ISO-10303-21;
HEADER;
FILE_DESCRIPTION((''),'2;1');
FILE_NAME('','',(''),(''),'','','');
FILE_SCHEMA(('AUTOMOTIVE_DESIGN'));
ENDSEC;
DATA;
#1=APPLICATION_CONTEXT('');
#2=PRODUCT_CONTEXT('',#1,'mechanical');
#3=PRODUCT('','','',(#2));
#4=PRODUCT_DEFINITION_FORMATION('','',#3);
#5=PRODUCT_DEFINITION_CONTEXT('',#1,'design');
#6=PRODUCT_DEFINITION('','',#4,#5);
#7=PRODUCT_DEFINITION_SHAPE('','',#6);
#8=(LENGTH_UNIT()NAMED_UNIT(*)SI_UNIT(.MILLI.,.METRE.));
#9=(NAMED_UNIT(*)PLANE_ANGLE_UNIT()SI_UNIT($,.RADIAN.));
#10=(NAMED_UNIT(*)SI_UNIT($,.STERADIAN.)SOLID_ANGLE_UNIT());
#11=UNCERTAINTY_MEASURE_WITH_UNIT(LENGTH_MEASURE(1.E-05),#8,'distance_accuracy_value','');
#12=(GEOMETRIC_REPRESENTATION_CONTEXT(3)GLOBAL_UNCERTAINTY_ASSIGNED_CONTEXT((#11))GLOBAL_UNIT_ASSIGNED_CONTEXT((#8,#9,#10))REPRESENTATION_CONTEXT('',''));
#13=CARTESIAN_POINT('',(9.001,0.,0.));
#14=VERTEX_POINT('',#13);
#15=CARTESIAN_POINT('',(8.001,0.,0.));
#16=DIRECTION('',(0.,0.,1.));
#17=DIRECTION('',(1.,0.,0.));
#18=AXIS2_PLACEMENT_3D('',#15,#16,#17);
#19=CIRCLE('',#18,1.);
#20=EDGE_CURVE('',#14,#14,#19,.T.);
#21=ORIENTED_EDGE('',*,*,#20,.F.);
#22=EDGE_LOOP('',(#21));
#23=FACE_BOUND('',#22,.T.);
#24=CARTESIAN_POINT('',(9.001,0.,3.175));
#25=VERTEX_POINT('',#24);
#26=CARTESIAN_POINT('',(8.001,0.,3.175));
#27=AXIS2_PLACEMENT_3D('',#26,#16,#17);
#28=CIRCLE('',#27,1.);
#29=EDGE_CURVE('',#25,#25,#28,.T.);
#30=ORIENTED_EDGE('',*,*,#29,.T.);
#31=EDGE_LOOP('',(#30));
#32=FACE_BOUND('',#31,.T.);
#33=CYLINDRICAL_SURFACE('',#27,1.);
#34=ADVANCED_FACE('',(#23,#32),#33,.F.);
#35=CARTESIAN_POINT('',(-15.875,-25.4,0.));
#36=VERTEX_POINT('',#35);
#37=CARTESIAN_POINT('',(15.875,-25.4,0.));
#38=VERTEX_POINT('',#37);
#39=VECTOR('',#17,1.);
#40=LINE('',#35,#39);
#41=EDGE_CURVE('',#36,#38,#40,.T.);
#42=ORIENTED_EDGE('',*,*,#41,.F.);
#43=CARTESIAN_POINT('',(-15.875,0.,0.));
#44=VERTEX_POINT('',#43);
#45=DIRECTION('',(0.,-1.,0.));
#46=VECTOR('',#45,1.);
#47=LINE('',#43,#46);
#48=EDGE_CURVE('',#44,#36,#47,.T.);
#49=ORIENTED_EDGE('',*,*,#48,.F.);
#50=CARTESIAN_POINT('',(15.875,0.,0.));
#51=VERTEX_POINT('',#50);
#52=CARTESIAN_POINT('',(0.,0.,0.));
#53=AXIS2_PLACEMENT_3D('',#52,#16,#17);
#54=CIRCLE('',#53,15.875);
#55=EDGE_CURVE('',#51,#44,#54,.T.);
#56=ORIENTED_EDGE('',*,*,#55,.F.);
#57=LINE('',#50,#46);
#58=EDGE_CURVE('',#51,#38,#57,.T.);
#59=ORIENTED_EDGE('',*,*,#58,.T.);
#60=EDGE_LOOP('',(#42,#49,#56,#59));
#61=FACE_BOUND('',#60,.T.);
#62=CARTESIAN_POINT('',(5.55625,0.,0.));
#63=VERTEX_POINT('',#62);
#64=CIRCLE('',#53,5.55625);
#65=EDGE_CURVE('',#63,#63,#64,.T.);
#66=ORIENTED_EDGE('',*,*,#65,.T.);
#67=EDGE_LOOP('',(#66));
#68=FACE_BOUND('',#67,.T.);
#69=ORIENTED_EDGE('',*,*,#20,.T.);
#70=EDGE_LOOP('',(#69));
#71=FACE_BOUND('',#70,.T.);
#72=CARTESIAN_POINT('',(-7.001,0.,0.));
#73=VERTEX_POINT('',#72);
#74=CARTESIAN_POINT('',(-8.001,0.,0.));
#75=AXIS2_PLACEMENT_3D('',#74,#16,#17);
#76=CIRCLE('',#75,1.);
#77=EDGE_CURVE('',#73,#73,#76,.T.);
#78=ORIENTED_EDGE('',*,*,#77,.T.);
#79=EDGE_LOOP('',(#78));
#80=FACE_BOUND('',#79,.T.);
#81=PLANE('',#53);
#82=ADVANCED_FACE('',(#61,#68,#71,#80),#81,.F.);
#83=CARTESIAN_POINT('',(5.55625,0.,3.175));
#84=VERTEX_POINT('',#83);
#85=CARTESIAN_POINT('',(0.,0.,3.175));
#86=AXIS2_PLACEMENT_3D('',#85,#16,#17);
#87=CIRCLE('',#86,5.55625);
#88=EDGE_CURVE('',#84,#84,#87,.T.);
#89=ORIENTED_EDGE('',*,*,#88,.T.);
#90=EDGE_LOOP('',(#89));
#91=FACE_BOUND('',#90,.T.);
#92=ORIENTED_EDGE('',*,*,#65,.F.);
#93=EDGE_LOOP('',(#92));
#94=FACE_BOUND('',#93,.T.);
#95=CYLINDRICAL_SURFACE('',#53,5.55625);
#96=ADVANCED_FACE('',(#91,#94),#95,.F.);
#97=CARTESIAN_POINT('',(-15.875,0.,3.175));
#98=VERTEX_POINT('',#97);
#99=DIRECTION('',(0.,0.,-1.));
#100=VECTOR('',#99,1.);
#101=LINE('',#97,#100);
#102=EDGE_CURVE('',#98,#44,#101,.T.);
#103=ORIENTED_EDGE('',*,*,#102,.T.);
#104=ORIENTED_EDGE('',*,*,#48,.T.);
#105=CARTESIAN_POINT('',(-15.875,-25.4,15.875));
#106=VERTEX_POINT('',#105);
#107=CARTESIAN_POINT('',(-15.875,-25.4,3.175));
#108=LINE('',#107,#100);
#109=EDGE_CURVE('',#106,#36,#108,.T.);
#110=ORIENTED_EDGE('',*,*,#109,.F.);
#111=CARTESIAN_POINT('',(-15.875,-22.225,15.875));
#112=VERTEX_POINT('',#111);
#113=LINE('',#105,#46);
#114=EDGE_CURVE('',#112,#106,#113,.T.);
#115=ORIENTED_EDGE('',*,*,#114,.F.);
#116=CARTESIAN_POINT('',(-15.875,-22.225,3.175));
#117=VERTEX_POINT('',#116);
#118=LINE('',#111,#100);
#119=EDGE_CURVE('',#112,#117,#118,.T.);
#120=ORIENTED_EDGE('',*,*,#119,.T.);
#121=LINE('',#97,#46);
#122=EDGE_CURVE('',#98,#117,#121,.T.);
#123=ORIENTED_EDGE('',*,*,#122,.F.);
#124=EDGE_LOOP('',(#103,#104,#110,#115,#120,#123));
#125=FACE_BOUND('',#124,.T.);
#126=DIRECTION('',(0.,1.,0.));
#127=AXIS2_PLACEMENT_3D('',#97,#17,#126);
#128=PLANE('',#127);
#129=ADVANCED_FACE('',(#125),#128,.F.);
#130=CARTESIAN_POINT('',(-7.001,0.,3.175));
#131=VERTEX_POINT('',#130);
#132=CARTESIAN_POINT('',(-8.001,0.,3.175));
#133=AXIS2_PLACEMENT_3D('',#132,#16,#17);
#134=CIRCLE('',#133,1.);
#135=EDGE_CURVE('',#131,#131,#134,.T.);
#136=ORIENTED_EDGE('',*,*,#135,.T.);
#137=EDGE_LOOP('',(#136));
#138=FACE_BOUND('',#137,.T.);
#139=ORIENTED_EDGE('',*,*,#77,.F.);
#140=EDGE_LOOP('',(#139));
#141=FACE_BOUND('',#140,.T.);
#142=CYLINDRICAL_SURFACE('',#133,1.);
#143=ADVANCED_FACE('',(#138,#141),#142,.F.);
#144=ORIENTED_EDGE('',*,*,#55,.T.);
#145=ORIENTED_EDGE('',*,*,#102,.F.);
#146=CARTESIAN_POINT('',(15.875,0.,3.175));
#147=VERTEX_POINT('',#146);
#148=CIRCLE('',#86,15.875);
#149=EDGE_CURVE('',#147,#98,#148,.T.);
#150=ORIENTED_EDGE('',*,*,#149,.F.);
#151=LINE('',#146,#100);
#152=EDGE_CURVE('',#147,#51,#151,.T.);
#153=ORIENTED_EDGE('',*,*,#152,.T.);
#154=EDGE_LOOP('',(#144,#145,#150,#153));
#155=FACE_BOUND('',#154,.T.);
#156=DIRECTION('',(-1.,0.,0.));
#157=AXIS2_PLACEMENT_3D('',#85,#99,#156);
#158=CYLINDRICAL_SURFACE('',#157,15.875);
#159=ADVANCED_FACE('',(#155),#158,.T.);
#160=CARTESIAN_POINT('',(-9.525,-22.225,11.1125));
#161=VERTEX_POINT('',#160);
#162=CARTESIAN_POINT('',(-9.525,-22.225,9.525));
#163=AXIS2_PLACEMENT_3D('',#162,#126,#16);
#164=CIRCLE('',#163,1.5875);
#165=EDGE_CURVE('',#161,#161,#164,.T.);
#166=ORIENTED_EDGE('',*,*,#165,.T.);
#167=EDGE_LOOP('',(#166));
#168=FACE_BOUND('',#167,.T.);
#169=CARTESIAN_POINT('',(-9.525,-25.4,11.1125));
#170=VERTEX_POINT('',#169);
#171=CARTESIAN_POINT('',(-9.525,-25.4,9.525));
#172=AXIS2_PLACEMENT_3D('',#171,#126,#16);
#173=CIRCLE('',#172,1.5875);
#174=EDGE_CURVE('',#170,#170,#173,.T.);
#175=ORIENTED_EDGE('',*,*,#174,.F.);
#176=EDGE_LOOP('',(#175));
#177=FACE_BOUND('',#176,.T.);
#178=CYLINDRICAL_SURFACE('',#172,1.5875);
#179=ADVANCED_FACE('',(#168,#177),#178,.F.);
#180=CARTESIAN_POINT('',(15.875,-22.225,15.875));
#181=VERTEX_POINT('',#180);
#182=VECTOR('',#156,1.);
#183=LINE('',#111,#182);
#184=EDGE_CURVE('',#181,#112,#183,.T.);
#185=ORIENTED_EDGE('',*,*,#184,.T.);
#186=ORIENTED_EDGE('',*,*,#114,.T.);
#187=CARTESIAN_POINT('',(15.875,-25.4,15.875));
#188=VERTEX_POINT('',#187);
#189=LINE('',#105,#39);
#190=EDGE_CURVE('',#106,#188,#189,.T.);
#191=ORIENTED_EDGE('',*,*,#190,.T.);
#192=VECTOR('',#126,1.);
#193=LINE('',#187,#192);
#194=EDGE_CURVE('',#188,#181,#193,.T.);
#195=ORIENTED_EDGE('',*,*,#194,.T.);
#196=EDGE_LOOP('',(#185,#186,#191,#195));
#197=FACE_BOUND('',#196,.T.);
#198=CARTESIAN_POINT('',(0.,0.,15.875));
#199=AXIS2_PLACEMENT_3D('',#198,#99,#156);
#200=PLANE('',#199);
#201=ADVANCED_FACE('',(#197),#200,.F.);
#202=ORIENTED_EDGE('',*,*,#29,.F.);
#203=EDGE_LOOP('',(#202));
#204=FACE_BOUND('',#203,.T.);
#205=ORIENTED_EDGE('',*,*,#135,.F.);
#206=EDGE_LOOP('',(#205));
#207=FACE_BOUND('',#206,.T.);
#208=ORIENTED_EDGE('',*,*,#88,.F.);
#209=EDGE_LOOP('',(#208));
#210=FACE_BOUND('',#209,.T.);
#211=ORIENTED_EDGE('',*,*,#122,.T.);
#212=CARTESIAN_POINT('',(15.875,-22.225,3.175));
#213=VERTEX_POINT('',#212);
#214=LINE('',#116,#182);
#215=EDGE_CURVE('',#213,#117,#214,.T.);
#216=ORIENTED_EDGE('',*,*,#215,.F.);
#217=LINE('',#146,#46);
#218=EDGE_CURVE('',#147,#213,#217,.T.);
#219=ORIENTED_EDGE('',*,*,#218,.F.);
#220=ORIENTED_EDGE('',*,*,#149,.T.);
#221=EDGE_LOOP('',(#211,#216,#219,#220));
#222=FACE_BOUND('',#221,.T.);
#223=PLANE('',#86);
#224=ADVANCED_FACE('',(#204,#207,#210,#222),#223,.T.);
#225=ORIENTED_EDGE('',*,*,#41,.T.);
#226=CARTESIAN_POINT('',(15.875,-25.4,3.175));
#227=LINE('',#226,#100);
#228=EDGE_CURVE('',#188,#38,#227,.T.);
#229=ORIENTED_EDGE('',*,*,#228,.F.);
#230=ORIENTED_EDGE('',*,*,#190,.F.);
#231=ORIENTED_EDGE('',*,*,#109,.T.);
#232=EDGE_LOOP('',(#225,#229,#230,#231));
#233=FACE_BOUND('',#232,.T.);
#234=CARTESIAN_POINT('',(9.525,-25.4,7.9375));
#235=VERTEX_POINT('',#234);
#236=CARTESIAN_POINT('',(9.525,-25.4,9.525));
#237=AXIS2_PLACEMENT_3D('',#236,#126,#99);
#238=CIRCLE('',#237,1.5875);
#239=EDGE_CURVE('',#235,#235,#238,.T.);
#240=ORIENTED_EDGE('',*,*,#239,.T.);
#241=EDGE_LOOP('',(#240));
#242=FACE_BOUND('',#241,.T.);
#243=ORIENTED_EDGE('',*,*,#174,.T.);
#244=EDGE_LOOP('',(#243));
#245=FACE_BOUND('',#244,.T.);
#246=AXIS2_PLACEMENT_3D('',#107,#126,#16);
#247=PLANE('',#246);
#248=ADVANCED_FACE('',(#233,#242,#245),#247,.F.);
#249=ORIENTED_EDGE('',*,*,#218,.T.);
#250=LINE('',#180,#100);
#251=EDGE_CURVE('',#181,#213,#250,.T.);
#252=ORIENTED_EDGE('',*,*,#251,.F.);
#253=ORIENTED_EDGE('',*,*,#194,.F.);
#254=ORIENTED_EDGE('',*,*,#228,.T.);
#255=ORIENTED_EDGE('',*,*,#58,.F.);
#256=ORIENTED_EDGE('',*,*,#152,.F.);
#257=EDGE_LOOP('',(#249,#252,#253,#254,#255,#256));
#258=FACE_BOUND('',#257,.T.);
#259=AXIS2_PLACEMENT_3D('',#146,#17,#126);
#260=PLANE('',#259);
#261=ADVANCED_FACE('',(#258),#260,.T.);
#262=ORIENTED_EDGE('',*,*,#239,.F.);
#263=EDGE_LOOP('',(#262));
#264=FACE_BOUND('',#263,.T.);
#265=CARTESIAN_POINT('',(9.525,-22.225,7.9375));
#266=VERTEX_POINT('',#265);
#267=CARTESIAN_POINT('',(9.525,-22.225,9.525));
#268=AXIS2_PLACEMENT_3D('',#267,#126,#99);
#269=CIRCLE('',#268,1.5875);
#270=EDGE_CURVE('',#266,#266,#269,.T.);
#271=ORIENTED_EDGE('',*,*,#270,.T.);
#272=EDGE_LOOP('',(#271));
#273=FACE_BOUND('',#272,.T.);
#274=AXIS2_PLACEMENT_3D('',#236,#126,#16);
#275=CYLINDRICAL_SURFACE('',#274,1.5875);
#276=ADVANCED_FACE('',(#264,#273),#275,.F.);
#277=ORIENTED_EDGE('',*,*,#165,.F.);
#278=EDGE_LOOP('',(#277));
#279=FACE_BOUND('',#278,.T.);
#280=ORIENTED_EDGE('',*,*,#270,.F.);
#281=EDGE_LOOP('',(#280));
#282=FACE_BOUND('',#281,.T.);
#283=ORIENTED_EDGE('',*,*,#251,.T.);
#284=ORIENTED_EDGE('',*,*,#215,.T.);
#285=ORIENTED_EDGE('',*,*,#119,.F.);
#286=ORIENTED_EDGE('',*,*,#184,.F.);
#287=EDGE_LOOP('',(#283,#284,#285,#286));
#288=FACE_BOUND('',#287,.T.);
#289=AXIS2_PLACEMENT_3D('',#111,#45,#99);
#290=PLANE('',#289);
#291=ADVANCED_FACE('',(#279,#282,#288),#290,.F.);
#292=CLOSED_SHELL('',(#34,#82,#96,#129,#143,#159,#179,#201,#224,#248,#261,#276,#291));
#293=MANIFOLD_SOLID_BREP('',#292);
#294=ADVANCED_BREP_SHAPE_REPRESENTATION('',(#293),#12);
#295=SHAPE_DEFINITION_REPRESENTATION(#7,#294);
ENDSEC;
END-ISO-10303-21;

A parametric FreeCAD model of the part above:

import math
import FreeCAD as App
import Part
import Sketcher

V = App.Vector
Q = App.Units.Quantity

doc = App.newDocument("Part")
body = doc.addObject("PartDesign::Body", "Body")

sketch1 = body.newObject("Sketcher::SketchObject", "Sketch")
sketch1.AttachmentSupport = (doc.getObject("XY_Plane"), [""])
sketch1.MapMode = "FlatFace"
sketch1.addGeometry(Part.ArcOfCircle(Part.Circle(V(0, 0, 0), V(0, 0, 1), 16), math.radians(0), math.radians(180)), False)
sketch1.addGeometry(Part.LineSegment(V(-16, 0, 0), V(-16, -25, 0)), False)
sketch1.addGeometry(Part.LineSegment(V(-16, -25, 0), V(16, -25, 0)), False)
sketch1.addGeometry(Part.LineSegment(V(16, -25, 0), V(16, 0, 0)), False)
sketch1.addConstraint(Sketcher.Constraint("Tangent", 0, 2, 1, 1))
sketch1.addConstraint(Sketcher.Constraint("Coincident", 1, 2, 2, 1))
sketch1.addConstraint(Sketcher.Constraint("Coincident", 2, 2, 3, 1))
sketch1.addConstraint(Sketcher.Constraint("Tangent", 3, 2, 0, 1))
sketch1.addConstraint(Sketcher.Constraint("Vertical", 1))
sketch1.addConstraint(Sketcher.Constraint("Horizontal", 2))
sketch1.addConstraint(Sketcher.Constraint("Vertical", 3))
sketch1.addConstraint(Sketcher.Constraint("Coincident", 0, 3, -1, 1))
sketch1.addConstraint(Sketcher.Constraint("DistanceY", 1, 2, 1, 1, Q("1 in")))
sketch1.addConstraint(Sketcher.Constraint("Radius", 0, Q("0.625 in")))
pad1 = body.newObject("PartDesign::Pad", "Pad")
pad1.Profile = sketch1
pad1.Length = Q("0.125 in")

sketch2 = body.newObject("Sketcher::SketchObject", "Sketch001")
sketch2.AttachmentSupport = (doc.getObject("XY_Plane"), [""])
sketch2.MapMode = "FlatFace"
sketch2.AttachmentOffset = App.Placement(V(0, 0, 0.125 * 25.4), App.Rotation())
sketch2.addGeometry(Part.Circle(V(0, 0, 0), V(0, 0, 1), 6), False)
sketch2.addConstraint(Sketcher.Constraint("Coincident", 0, 3, -1, 1))
sketch2.addConstraint(Sketcher.Constraint("Diameter", 0, Q("0.4375 in")))
pocket1 = body.newObject("PartDesign::Pocket", "Pocket")
pocket1.Profile = sketch2
pocket1.Type = "ThroughAll"

sketch3 = body.newObject("Sketcher::SketchObject", "Sketch002")
sketch3.AttachmentSupport = (doc.getObject("XY_Plane"), [""])
sketch3.MapMode = "FlatFace"
sketch3.AttachmentOffset = App.Placement(V(0, 0, 0.125 * 25.4), App.Rotation())
sketch3.addGeometry(Part.LineSegment(V(-15.9, -22.2, 0), V(-15.9, -25.4, 0)), False)
sketch3.addGeometry(Part.LineSegment(V(-15.9, -25.4, 0), V(15.9, -25.4, 0)), False)
sketch3.addGeometry(Part.LineSegment(V(15.9, -25.4, 0), V(15.9, -22.2, 0)), False)
sketch3.addGeometry(Part.LineSegment(V(15.9, -22.2, 0), V(-15.9, -22.2, 0)), False)
sketch3.addConstraint(Sketcher.Constraint("Coincident", 0, 2, 1, 1))
sketch3.addConstraint(Sketcher.Constraint("Coincident", 1, 2, 2, 1))
sketch3.addConstraint(Sketcher.Constraint("Coincident", 2, 2, 3, 1))
sketch3.addConstraint(Sketcher.Constraint("Coincident", 3, 2, 0, 1))
sketch3.addConstraint(Sketcher.Constraint("Vertical", 0))
sketch3.addConstraint(Sketcher.Constraint("Horizontal", 1))
sketch3.addConstraint(Sketcher.Constraint("Vertical", 2))
sketch3.addConstraint(Sketcher.Constraint("Horizontal", 3))
sketch3.addConstraint(Sketcher.Constraint("DistanceY", 0, 2, -1, 1, Q("1 in")))
sketch3.addConstraint(Sketcher.Constraint("DistanceX", 1, 1, 1, 2, Q("1.25 in")))
sketch3.addConstraint(Sketcher.Constraint("DistanceY", 0, 2, 0, 1, Q("0.125 in")))
sketch3.addConstraint(Sketcher.Constraint("DistanceX", 0, 2, -1, 1, Q("0.625 in")))
pad2 = body.newObject("PartDesign::Pad", "Pad001")
pad2.Profile = sketch3
pad2.Length = Q("0.5 in")

sketch4 = body.newObject("Sketcher::SketchObject", "Sketch003")
sketch4.AttachmentSupport = (doc.getObject("XZ_Plane"), [""])
sketch4.MapMode = "FlatFace"
sketch4.AttachmentOffset = App.Placement(V(0, 0, 0.875 * 25.4), App.Rotation())
sketch4.addGeometry(Part.Circle(V(-9.5, 9.5, 0), V(0, 0, 1), 1.6), False)
sketch4.addGeometry(Part.Circle(V(9.5, 9.5, 0), V(0, 0, 1), 1.6), False)
sketch4.addConstraint(Sketcher.Constraint("Equal", 0, 1))
sketch4.addConstraint(Sketcher.Constraint("Symmetric", 0, 3, 1, 3, -2))
sketch4.addConstraint(Sketcher.Constraint("Diameter", 0, Q("0.125 in")))
sketch4.addConstraint(Sketcher.Constraint("DistanceX", 0, 3, 1, 3, Q("0.75 in")))
sketch4.addConstraint(Sketcher.Constraint("DistanceY", -1, 1, 0, 3, Q("0.375 in")))
pocket2 = body.newObject("PartDesign::Pocket", "Pocket001")
pocket2.Profile = sketch4
pocket2.Type = "ThroughAll"
pocket2.Reversed = True

sketch5 = body.newObject("Sketcher::SketchObject", "Sketch004")
sketch5.AttachmentSupport = (doc.getObject("XY_Plane"), [""])
sketch5.MapMode = "FlatFace"
sketch5.AttachmentOffset = App.Placement(V(0, 0, 0.125 * 25.4), App.Rotation())
sketch5.addGeometry(Part.Circle(V(-8, 0, 0), V(0, 0, 1), 1), False)
sketch5.addGeometry(Part.Circle(V(8, 0, 0), V(0, 0, 1), 1), False)
sketch5.addConstraint(Sketcher.Constraint("Equal", 0, 1))
sketch5.addConstraint(Sketcher.Constraint("Symmetric", 0, 3, 1, 3, -1, 1))
sketch5.addConstraint(Sketcher.Constraint("PointOnObject", 0, 3, -1))
sketch5.addConstraint(Sketcher.Constraint("Diameter", 0, 2.0))
sketch5.addConstraint(Sketcher.Constraint("DistanceX", 0, 3, 1, 3, Q("0.63 in")))
doc.recompute()
hole = body.newObject("PartDesign::Hole", "Hole")
hole.Profile = sketch5
hole.ThreadType = "None"
hole.Diameter = 2
hole.DepthType = "Dimension"
hole.Depth = Q("0.5 in")
hole.DrillPoint = "Angled"
hole.DrillPointAngle = 118

doc.recompute()
